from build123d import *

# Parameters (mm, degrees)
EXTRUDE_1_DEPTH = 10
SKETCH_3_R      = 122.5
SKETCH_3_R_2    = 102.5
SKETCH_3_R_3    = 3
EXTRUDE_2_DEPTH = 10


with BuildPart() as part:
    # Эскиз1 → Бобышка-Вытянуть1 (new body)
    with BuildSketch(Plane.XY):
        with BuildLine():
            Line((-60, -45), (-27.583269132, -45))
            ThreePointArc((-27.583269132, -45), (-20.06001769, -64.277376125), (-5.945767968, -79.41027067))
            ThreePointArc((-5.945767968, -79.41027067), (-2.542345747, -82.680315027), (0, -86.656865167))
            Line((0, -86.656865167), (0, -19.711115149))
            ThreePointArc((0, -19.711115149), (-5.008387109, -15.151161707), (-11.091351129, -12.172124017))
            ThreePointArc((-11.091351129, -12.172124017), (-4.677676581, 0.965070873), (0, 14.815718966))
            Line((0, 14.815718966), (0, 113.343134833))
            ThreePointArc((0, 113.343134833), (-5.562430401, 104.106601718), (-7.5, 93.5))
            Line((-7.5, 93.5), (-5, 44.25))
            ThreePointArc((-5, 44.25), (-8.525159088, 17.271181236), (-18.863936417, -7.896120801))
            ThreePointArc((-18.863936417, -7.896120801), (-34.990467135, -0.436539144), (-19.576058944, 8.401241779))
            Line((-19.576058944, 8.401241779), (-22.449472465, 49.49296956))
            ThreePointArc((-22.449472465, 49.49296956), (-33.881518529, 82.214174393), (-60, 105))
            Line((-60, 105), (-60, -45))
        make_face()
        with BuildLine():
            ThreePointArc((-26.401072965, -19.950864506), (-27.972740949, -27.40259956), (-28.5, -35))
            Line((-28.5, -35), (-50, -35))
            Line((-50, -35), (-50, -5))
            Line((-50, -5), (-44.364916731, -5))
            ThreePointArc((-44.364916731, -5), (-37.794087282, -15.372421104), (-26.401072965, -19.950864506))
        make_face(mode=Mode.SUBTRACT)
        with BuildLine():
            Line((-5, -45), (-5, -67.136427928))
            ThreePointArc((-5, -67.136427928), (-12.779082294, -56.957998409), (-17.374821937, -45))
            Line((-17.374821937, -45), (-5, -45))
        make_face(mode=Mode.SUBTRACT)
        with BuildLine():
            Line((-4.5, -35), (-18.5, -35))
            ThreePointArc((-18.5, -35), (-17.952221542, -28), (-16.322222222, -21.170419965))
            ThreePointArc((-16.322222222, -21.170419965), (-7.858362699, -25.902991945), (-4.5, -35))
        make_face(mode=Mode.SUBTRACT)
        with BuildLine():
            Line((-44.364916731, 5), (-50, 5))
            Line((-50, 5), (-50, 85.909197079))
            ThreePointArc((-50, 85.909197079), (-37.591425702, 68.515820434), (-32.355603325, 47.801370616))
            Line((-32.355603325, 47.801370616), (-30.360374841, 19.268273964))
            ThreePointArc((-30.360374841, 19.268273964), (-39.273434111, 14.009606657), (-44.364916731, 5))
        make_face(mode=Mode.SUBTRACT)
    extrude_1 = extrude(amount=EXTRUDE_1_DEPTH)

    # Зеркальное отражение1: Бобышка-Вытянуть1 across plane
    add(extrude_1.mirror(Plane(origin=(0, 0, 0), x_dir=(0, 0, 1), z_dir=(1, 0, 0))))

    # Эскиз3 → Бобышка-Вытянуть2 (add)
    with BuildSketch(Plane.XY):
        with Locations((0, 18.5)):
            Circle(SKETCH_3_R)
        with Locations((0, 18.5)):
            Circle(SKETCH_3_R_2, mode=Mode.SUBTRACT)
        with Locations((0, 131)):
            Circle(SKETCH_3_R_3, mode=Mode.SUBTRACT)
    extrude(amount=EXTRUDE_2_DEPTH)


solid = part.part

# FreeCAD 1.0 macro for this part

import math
import FreeCAD as App
import Part
import Sketcher
Q = App.Units.Quantity

doc = App.newDocument("Part")
body = doc.addObject("PartDesign::Body", "Body")

sketch1 = body.newObject("Sketcher::SketchObject", "Sketch")
sketch1.AttachmentSupport = (doc.getObject("XY_Plane"), [""])
sketch1.MapMode = "FlatFace"
sketch1.addGeometry(Part.LineSegment(App.Vector(-60, -45, 0), App.Vector(-28, -45, 0)), False)
sketch1.addGeometry(Part.ArcOfCircle(Part.Circle(App.Vector(26, -35, 0), App.Vector(0, 0, 1), 55), math.radians(-170), math.radians(-126)), False)
sketch1.addGeometry(Part.ArcOfCircle(Part.Circle(App.Vector(-18, -95, 0), App.Vector(0, 0, 1), 20), math.radians(26), math.radians(53)), False)
sketch1.addGeometry(Part.LineSegment(App.Vector(0, -87, 0), App.Vector(0, -20, 0)), False)
sketch1.addGeometry(Part.ArcOfCircle(Part.Circle(App.Vector(-19, -35, 0), App.Vector(0, 0, 1), 24), math.radians(40), math.radians(72)), False)
sketch1.addGeometry(Part.ArcOfCircle(Part.Circle(App.Vector(-110, 44, 0), App.Vector(0, 0, 1), 114), math.radians(-29.7), math.radians(-14.98)), False)
sketch1.addGeometry(Part.LineSegment(App.Vector(0, 15, 0), App.Vector(0, 113, 0)), False)
sketch1.addGeometry(Part.ArcOfCircle(Part.Circle(App.Vector(22, 94, 0), App.Vector(0, 0, 1), 30), math.radians(139), math.radians(180)), False)
sketch1.addGeometry(Part.LineSegment(App.Vector(-8, 94, 0), App.Vector(-5, 44, 0)), False)
sketch1.addGeometry(Part.ArcOfCircle(Part.Circle(App.Vector(-110, 44, 0), App.Vector(0, 0, 1), 105), math.radians(-30), math.radians(0)), False)
sketch1.addGeometry(Part.ArcOfCircle(Part.Circle(App.Vector(-25, 0, 0), App.Vector(0, 0, 1), 10), math.radians(57), math.radians(308)), False)
sketch1.addGeometry(Part.LineSegment(App.Vector(-20, 8, 0), App.Vector(-22, 49, 0)), False)
sketch1.addGeometry(Part.ArcOfCircle(Part.Circle(App.Vector(-90, 44, 0), App.Vector(0, 0, 1), 68), math.radians(4), math.radians(64)), False)
sketch1.addGeometry(Part.LineSegment(App.Vector(-60, 105, 0), App.Vector(-60, -45, 0)), False)
sketch1.addGeometry(Part.ArcOfCircle(Part.Circle(App.Vector(-25, 0, 0), App.Vector(0, 0, 1), 20), math.radians(-166), math.radians(-94)), False)
sketch1.addGeometry(Part.ArcOfCircle(Part.Circle(App.Vector(27, -35, 0), App.Vector(0, 0, 1), 55), math.radians(164.12), math.radians(180)), False)
sketch1.addGeometry(Part.LineSegment(App.Vector(-28, -35, 0), App.Vector(-50, -35, 0)), False)
sketch1.addGeometry(Part.LineSegment(App.Vector(-50, -35, 0), App.Vector(-50, -5, 0)), False)
sketch1.addGeometry(Part.LineSegment(App.Vector(-50, -5, 0), App.Vector(-44, -5, 0)), False)
sketch1.addGeometry(Part.LineSegment(App.Vector(-17, -45, 0), App.Vector(-5, -45, 0)), False)
sketch1.addGeometry(Part.LineSegment(App.Vector(-5, -45, 0), App.Vector(-5, -67, 0)), False)
sketch1.addGeometry(Part.ArcOfCircle(Part.Circle(App.Vector(26, -35, 0), App.Vector(0, 0, 1), 45), math.radians(-167), math.radians(-134)), False)
sketch1.addGeometry(Part.ArcOfCircle(Part.Circle(App.Vector(-18, -35, 0), App.Vector(0, 0, 1), 14), math.radians(0), math.radians(81)), False)
sketch1.addGeometry(Part.LineSegment(App.Vector(-4, -35, 0), App.Vector(-18, -35, 0)), False)
sketch1.addGeometry(Part.ArcOfCircle(Part.Circle(App.Vector(26, -35, 0), App.Vector(0, 0, 1), 45), math.radians(162.1), math.radians(180)), False)
sketch1.addGeometry(Part.ArcOfCircle(Part.Circle(App.Vector(-25, 0, 0), App.Vector(0, 0, 1), 20), math.radians(106), math.radians(166)), False)
sketch1.addGeometry(Part.LineSegment(App.Vector(-44, 5, 0), App.Vector(-50, 5, 0)), False)
sketch1.addGeometry(Part.LineSegment(App.Vector(-50, 5, 0), App.Vector(-50, 86, 0)), False)
sketch1.addGeometry(Part.ArcOfCircle(Part.Circle(App.Vector(-90, 44, 0), App.Vector(0, 0, 1), 58), math.radians(4), math.radians(46)), False)
sketch1.addGeometry(Part.LineSegment(App.Vector(-32, 48, 0), App.Vector(-30, 19, 0)), False)
sketch1.addConstraint(Sketcher.Constraint("Coincident", 0, 2, 1, 1))
sketch1.addConstraint(Sketcher.Constraint("Coincident", 1, 2, 2, 2))
sketch1.addConstraint(Sketcher.Constraint("Coincident", 2, 1, 3, 1))
sketch1.addConstraint(Sketcher.Constraint("Coincident", 3, 2, 4, 1))
sketch1.addConstraint(Sketcher.Constraint("Coincident", 4, 2, 5, 1))
sketch1.addConstraint(Sketcher.Constraint("Coincident", 5, 2, 6, 1))
sketch1.addConstraint(Sketcher.Constraint("Coincident", 6, 2, 7, 1))
sketch1.addConstraint(Sketcher.Constraint("Coincident", 7, 2, 8, 1))
sketch1.addConstraint(Sketcher.Constraint("Coincident", 8, 2, 9, 2))
sketch1.addConstraint(Sketcher.Constraint("Coincident", 9, 1, 10, 2))
sketch1.addConstraint(Sketcher.Constraint("Coincident", 10, 1, 11, 1))
sketch1.addConstraint(Sketcher.Constraint("Coincident", 11, 2, 12, 1))
sketch1.addConstraint(Sketcher.Constraint("Coincident", 12, 2, 13, 1))
sketch1.addConstraint(Sketcher.Constraint("Coincident", 13, 2, 0, 1))
sketch1.addConstraint(Sketcher.Constraint("Coincident", 14, 2, 15, 1))
sketch1.addConstraint(Sketcher.Constraint("Coincident", 15, 2, 16, 1))
sketch1.addConstraint(Sketcher.Constraint("Coincident", 16, 2, 17, 1))
sketch1.addConstraint(Sketcher.Constraint("Coincident", 17, 2, 18, 1))
sketch1.addConstraint(Sketcher.Constraint("Coincident", 18, 2, 14, 1))
sketch1.addConstraint(Sketcher.Constraint("Coincident", 19, 2, 20, 1))
sketch1.addConstraint(Sketcher.Constraint("Coincident", 20, 2, 21, 2))
sketch1.addConstraint(Sketcher.Constraint("Coincident", 21, 1, 19, 1))
sketch1.addConstraint(Sketcher.Constraint("Coincident", 22, 1, 23, 1))
sketch1.addConstraint(Sketcher.Constraint("Coincident", 23, 2, 24, 2))
sketch1.addConstraint(Sketcher.Constraint("Coincident", 24, 1, 22, 2))
sketch1.addConstraint(Sketcher.Constraint("Coincident", 25, 2, 26, 1))
sketch1.addConstraint(Sketcher.Constraint("Coincident", 26, 2, 27, 1))
sketch1.addConstraint(Sketcher.Constraint("Coincident", 27, 2, 28, 2))
sketch1.addConstraint(Sketcher.Constraint("Coincident", 28, 1, 29, 1))
sketch1.addConstraint(Sketcher.Constraint("Coincident", 29, 2, 25, 1))
sketch1.addConstraint(Sketcher.Constraint("Horizontal", 0))
sketch1.addConstraint(Sketcher.Constraint("Vertical", 3))
sketch1.addConstraint(Sketcher.Constraint("Vertical", 6))
sketch1.addConstraint(Sketcher.Constraint("Vertical", 13))
sketch1.addConstraint(Sketcher.Constraint("Horizontal", 16))
sketch1.addConstraint(Sketcher.Constraint("Vertical", 17))
sketch1.addConstraint(Sketcher.Constraint("Horizontal", 18))
sketch1.addConstraint(Sketcher.Constraint("Horizontal", 19))
sketch1.addConstraint(Sketcher.Constraint("Vertical", 20))
sketch1.addConstraint(Sketcher.Constraint("Horizontal", 23))
sketch1.addConstraint(Sketcher.Constraint("Horizontal", 26))
sketch1.addConstraint(Sketcher.Constraint("Vertical", 27))
sketch1.addConstraint(Sketcher.Constraint("Coincident", 9, 3, 5, 3))
sketch1.addConstraint(Sketcher.Constraint("Coincident", 14, 3, 10, 3))
sketch1.addConstraint(Sketcher.Constraint("Coincident", 15, 3, 1, 3))
sketch1.addConstraint(Sketcher.Constraint("Coincident", 21, 3, 1, 3))
sketch1.addConstraint(Sketcher.Constraint("Coincident", 22, 3, 4, 3))
sketch1.addConstraint(Sketcher.Constraint("Coincident", 24, 3, 1, 3))
sketch1.addConstraint(Sketcher.Constraint("Coincident", 25, 3, 10, 3))
sketch1.addConstraint(Sketcher.Constraint("Coincident", 28, 3, 12, 3))
sketch1.addConstraint(Sketcher.Constraint("Coincident", 23, 2, 4, 3))
sketch1.addConstraint(Sketcher.Constraint("Equal", 2, 14))
sketch1.addConstraint(Sketcher.Constraint("Equal", 1, 15))
sketch1.addConstraint(Sketcher.Constraint("Equal", 21, 24))
sketch1.addConstraint(Sketcher.Constraint("Equal", 14, 25))
sketch1.addConstraint(Sketcher.Constraint("Symmetric", 18, 2, 25, 2, -1))
sketch1.addConstraint(Sketcher.Constraint("PointOnObject", 2, 1, -2))
sketch1.addConstraint(Sketcher.Constraint("PointOnObject", 5, 2, -2))
sketch1.addConstraint(Sketcher.Constraint("Parallel", 11, 29))
sketch1.addConstraint(Sketcher.Constraint("Horizontal", 1, 3, 4, 3))
sketch1.addConstraint(Sketcher.Constraint("Horizontal", 9, 3, 12, 3))
sketch1.addConstraint(Sketcher.Constraint("Horizontal", 28, 3, 8, 2))
sketch1.addConstraint(Sketcher.Constraint("Horizontal", 24, 3, 15, 2))
sketch1.addConstraint(Sketcher.Constraint("Horizontal", 13, 2, 19, 2))
sketch1.addConstraint(Sketcher.Constraint("Vertical", 8, 2, 19, 2))
sketch1.addConstraint(Sketcher.Constraint("Vertical", 17, 2, 26, 2))
sketch1.addConstraint(Sketcher.Constraint("Radius", 1, Q("55 mm")))
sketch1.addConstraint(Sketcher.Constraint("Radius", 2, Q("20 mm")))
sketch1.addConstraint(Sketcher.Constraint("Radius", 4, Q("24 mm")))
sketch1.addConstraint(Sketcher.Constraint("Radius", 7, Q("30 mm")))
sketch1.addConstraint(Sketcher.Constraint("Radius", 9, Q("105 mm")))
sketch1.addConstraint(Sketcher.Constraint("Radius", 10, Q("10 mm")))
sketch1.addConstraint(Sketcher.Constraint("Radius", 21, Q("45 mm")))
sketch1.addConstraint(Sketcher.Constraint("Radius", 22, Q("14 mm")))
sketch1.addConstraint(Sketcher.Constraint("DistanceY", 13, 2, 13, 1, Q("150 mm")))
sketch1.addConstraint(Sketcher.Constraint("DistanceY", 17, 1, 17, 2, Q("30 mm")))
sketch1.addConstraint(Sketcher.Constraint("Angle", 11, Q("94 deg")))
sketch1.addConstraint(Sketcher.Constraint("Radius", 5, Q("113.87 mm")))
sketch1.addConstraint(Sketcher.Constraint("DistanceX", 16, 2, 16, 1, Q("21.5 mm")))
sketch1.addConstraint(Sketcher.Constraint("DistanceY", 1, 3, -1, 1, Q("35 mm")))
sketch1.addConstraint(Sketcher.Constraint("DistanceX", 5, 3, -1, 1, Q("110 mm")))
sketch1.addConstraint(Sketcher.Constraint("DistanceX", 10, 3, -1, 1, Q("25 mm")))
sketch1.addConstraint(Sketcher.Constraint("DistanceX", 12, 3, -1, 1, Q("90 mm")))
sketch1.addConstraint(Sketcher.Constraint("DistanceY", 0, 2, -1, 1, Q("45 mm")))
sketch1.addConstraint(Sketcher.Constraint("DistanceX", 12, 2, -1, 1, Q("60 mm")))
sketch1.addConstraint(Sketcher.Constraint("DistanceX", 16, 2, -1, 1, Q("50 mm")))
sketch1.addConstraint(Sketcher.Constraint("DistanceX", 7, 3, 1, 3, Q("4 mm")))
sketch1.addConstraint(Sketcher.Constraint("DistanceY", -1, 1, 7, 3, Q("93.5 mm")))
sketch1.addConstraint(Sketcher.Constraint("DistanceY", -1, 1, 7, 2, Q("93.5 mm")))
sketch1.addConstraint(Sketcher.Constraint("DistanceY", -1, 1, 5, 3, Q("44.25 mm")))
sketch1.addConstraint(Sketcher.Constraint("Radius", 28, Q("57.75369 mm")))
sketch1.addConstraint(Sketcher.Constraint("DistanceY", 3, 1, 3, 2, Q("66.94575 mm")))
sketch1.addConstraint(Sketcher.Constraint("DistanceX", 0, 2, 1, 2, Q("21.637501 mm")))
sketch1.addConstraint(Sketcher.Constraint("DistanceY", 28, 1, 11, 2, Q("1.691599 mm")))
sketch1.addConstraint(Sketcher.Constraint("Distance", 11, Q("41.19207 mm")))
pad1 = body.newObject("PartDesign::Pad", "Pad")
pad1.Profile = sketch1
pad1.Length = 10
doc.recompute()

mirrored = body.newObject("PartDesign::Mirrored", "Mirrored")
mirrored.Originals = [pad1]
mirrored.MirrorPlane = (doc.getObject("YZ_Plane"), [""])
body.Tip = mirrored

sketch2 = body.newObject("Sketcher::SketchObject", "Sketch001")
sketch2.AttachmentSupport = (doc.getObject("XY_Plane"), [""])
sketch2.MapMode = "FlatFace"
sketch2.addGeometry(Part.Circle(App.Vector(0, 18.5, 0), App.Vector(0, 0, 1), 122.5), False)
sketch2.addGeometry(Part.Circle(App.Vector(0, 18.5, 0), App.Vector(0, 0, 1), 102.5), False)
sketch2.addGeometry(Part.Circle(App.Vector(0, 131, 0), App.Vector(0, 0, 1), 3), False)
sketch2.addConstraint(Sketcher.Constraint("Coincident", 1, 3, 0, 3))
sketch2.addConstraint(Sketcher.Constraint("PointOnObject", 0, 3, -2))
sketch2.addConstraint(Sketcher.Constraint("PointOnObject", 2, 3, -2))
sketch2.addConstraint(Sketcher.Constraint("Diameter", 0, Q("245 mm")))
sketch2.addConstraint(Sketcher.Constraint("Diameter", 1, Q("205 mm")))
sketch2.addConstraint(Sketcher.Constraint("Diameter", 2, Q("6 mm")))
sketch2.addConstraint(Sketcher.Constraint("DistanceY", -1, 1, 2, 3, Q("131 mm")))
sketch2.addConstraint(Sketcher.Constraint("DistanceY", -1, 1, 0, 3, Q("18.5 mm")))
pad2 = body.newObject("PartDesign::Pad", "Pad001")
pad2.Profile = sketch2
pad2.Length = 10

doc.recompute()
